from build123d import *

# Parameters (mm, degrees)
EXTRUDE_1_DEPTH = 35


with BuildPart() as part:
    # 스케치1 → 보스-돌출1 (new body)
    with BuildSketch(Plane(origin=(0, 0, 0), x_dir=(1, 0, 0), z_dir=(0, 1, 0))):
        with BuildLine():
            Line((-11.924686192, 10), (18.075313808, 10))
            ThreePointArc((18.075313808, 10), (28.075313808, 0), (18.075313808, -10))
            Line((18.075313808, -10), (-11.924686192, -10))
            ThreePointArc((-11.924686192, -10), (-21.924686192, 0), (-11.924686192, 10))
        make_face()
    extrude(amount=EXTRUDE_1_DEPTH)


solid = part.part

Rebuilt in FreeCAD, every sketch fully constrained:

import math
import FreeCAD as App
import Part
import Sketcher

V = App.Vector

doc = App.newDocument("Part")
body = doc.addObject("PartDesign::Body", "Body")

sketch1 = body.newObject("Sketcher::SketchObject", "Sketch")
sketch1.AttachmentSupport = (doc.getObject("XZ_Plane"), [""])
sketch1.MapMode = "FlatFace"
sketch1.addGeometry([
    Part.LineSegment(V(18, -10, 0), V(-12, -10, 0)),
    Part.ArcOfCircle(Part.Circle(V(-12, 0, 0), V(0, 0, 1), 10), math.radians(90), math.radians(270)),
    Part.LineSegment(V(-12, 10, 0), V(18, 10, 0)),
    Part.ArcOfCircle(Part.Circle(V(18, 0, 0), V(0, 0, 1), 10), math.radians(-90), math.radians(90)),
], False)
sketch1.addConstraint([
    Sketcher.Constraint("Tangent", 0, 2, 1, 2),
    Sketcher.Constraint("Tangent", 1, 1, 2, 1),
    Sketcher.Constraint("Tangent", 2, 2, 3, 2),
    Sketcher.Constraint("Tangent", 3, 1, 0, 1),
    Sketcher.Constraint("Horizontal", 0),
    Sketcher.Constraint("Horizontal", 2),
    Sketcher.Constraint("PointOnObject", 1, 3, -1),
    Sketcher.Constraint("Radius", 1, 10.0),
    Sketcher.Constraint("DistanceX", 0, 2, 0, 1, 30.0),
    Sketcher.Constraint("DistanceX", 1, 3, -1, 1, 11.924686),
])
pad1 = body.newObject("PartDesign::Pad", "Pad")
pad1.Profile = sketch1
pad1.Length = 35
pad1.Reversed = True

doc.recompute()
